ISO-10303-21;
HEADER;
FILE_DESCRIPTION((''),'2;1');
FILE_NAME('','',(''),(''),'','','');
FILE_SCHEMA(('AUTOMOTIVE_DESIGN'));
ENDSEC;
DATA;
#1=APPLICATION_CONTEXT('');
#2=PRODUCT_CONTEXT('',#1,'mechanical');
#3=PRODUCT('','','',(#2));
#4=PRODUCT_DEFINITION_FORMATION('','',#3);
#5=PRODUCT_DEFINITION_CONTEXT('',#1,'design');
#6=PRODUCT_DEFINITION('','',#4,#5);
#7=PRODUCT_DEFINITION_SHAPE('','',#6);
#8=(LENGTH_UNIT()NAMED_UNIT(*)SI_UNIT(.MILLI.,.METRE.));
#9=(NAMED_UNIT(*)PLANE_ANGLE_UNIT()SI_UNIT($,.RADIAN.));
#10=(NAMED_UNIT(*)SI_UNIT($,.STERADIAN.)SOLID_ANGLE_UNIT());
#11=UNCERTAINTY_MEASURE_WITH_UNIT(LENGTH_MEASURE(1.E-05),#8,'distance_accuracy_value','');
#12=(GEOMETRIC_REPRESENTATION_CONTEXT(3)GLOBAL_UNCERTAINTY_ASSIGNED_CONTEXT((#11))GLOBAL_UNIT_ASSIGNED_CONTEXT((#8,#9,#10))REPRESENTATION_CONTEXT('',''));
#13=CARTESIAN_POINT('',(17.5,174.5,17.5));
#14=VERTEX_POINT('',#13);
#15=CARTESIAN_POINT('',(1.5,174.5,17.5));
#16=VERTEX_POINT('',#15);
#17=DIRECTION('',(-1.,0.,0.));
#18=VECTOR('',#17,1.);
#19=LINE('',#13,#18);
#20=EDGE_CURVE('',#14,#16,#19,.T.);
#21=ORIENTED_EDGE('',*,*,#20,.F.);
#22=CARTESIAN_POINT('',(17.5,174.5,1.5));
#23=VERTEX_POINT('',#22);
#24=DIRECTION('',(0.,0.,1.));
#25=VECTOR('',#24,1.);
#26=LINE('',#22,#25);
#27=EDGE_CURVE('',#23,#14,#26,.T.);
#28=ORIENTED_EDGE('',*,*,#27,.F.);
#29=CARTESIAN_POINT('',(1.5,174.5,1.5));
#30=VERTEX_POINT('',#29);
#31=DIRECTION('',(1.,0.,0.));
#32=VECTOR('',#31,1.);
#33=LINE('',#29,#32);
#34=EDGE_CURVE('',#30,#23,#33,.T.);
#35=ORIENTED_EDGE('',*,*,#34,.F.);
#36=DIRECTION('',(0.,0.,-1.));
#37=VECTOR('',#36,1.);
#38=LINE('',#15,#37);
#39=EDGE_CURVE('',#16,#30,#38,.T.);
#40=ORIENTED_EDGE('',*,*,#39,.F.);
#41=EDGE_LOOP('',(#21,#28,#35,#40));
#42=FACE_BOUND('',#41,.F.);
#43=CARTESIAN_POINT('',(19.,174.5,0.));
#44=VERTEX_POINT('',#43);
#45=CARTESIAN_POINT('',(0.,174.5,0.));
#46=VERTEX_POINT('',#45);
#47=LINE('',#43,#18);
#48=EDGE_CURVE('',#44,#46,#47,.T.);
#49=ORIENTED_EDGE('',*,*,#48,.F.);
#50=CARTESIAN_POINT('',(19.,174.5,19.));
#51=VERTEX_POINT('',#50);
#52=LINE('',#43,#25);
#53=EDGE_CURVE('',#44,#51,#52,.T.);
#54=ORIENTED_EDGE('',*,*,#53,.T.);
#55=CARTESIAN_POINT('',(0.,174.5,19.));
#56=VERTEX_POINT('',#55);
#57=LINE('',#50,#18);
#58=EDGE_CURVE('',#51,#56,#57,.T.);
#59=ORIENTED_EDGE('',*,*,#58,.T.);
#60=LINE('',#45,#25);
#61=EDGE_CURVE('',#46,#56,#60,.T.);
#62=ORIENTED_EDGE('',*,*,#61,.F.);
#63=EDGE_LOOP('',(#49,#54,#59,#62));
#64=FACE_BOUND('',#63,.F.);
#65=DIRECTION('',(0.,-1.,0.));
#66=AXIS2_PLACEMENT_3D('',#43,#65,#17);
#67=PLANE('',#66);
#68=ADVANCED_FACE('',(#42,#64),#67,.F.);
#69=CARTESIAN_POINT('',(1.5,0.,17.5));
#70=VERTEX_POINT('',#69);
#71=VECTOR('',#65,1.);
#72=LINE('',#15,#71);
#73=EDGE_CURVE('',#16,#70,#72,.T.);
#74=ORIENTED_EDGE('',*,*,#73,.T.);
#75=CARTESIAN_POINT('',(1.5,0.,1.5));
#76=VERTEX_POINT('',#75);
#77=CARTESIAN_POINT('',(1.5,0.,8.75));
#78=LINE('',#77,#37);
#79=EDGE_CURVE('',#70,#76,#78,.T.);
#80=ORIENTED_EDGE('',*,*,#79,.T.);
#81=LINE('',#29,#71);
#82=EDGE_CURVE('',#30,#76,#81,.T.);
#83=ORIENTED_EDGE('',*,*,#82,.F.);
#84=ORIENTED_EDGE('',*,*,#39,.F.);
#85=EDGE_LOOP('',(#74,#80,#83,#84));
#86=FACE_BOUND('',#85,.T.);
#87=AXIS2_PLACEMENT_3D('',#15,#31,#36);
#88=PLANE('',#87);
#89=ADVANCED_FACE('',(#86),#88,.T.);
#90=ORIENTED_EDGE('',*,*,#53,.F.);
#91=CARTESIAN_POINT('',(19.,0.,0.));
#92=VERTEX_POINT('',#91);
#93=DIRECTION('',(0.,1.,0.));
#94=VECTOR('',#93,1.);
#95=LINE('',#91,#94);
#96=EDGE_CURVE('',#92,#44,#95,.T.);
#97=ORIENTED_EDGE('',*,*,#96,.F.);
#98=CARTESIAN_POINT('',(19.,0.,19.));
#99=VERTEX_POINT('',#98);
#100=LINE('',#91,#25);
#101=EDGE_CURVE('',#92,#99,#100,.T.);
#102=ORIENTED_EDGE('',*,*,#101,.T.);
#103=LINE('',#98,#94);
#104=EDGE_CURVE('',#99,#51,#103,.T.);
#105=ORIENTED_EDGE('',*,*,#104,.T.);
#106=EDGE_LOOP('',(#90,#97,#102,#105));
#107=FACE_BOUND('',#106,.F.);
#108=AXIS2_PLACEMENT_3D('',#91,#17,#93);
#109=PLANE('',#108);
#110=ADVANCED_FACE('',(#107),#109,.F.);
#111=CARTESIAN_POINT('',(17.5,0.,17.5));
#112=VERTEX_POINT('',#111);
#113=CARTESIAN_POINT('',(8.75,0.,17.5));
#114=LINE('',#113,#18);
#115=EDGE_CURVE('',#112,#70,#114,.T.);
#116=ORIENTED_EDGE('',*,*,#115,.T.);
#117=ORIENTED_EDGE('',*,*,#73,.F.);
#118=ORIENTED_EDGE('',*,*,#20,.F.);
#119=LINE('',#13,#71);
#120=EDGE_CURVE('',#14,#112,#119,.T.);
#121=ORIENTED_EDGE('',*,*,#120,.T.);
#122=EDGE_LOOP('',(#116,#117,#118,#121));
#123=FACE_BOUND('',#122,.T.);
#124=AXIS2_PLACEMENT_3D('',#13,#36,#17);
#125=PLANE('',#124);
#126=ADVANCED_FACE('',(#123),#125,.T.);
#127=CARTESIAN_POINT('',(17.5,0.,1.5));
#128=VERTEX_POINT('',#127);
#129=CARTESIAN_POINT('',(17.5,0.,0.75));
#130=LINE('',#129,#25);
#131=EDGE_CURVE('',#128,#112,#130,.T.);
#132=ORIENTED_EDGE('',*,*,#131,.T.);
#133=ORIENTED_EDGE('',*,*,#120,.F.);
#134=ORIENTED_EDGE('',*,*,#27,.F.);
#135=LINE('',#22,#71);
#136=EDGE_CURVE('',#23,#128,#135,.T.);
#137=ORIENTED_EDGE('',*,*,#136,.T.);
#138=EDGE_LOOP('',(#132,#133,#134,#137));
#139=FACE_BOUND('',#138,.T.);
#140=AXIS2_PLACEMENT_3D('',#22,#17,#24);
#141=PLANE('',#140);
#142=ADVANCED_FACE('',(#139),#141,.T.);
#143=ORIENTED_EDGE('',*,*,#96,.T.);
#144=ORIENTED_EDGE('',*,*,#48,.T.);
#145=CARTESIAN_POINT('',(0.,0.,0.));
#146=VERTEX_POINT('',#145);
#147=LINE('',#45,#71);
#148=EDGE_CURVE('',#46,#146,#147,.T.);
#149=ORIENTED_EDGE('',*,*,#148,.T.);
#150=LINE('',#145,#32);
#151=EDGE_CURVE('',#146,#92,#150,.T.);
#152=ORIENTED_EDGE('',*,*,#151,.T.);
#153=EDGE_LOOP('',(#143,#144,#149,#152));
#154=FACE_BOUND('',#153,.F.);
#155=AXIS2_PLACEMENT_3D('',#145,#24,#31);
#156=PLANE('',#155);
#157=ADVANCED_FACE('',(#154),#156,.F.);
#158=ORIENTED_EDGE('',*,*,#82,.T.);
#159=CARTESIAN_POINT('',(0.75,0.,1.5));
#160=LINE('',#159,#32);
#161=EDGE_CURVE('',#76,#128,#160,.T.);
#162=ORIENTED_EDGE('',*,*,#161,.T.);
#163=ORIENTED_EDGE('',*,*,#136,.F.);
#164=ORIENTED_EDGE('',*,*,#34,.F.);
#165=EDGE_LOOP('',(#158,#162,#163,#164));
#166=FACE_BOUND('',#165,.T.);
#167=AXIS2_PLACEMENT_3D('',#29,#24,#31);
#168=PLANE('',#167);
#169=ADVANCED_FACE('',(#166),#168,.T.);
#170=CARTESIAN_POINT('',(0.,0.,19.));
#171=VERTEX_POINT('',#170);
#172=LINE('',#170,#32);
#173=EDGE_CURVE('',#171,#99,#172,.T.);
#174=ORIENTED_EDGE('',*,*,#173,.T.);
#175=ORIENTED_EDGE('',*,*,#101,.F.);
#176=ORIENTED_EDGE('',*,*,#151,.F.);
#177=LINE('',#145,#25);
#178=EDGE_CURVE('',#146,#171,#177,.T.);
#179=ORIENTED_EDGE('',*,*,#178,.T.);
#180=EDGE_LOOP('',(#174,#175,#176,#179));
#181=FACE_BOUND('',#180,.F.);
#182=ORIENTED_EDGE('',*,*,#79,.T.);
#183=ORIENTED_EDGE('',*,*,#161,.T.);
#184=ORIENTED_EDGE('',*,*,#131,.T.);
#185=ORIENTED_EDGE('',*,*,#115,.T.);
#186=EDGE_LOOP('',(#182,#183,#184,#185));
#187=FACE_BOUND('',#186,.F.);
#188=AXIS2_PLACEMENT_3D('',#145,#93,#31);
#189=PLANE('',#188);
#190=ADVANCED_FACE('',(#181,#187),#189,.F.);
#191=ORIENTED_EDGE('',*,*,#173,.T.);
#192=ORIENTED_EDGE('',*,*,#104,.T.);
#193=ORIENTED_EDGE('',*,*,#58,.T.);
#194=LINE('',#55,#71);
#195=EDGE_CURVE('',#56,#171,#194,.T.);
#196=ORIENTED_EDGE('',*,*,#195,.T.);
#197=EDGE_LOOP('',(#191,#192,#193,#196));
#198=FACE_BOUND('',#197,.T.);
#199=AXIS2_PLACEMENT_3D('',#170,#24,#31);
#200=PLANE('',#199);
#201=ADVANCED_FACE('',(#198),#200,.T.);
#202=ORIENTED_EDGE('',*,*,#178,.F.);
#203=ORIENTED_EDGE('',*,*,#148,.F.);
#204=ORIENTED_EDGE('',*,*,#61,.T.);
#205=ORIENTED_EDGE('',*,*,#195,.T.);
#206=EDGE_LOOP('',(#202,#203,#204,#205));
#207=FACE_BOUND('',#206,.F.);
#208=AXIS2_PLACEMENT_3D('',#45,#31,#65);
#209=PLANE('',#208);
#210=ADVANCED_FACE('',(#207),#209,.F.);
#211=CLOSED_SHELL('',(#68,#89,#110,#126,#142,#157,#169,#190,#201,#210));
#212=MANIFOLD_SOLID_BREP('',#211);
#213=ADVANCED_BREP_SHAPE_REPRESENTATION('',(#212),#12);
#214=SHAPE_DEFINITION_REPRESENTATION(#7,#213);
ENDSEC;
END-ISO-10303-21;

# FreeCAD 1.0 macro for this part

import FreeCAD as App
import Part
import Sketcher
from FreeCAD import Vector
Q = App.Units.Quantity


def add_polygon(sketch, points):
    """Adds a closed chain of lines whose ends are joined by coincident constraints."""
    first, n = sketch.GeometryCount, len(points)
    for a, b in zip(points, points[1:] + points[:1]):
        sketch.addGeometry(Part.LineSegment(App.Vector(*a, 0), App.Vector(*b, 0)), False)
    for i in range(n):
        sketch.addConstraint(Sketcher.Constraint("Coincident", first + i, 2, first + (i + 1) % n, 1))

doc = App.newDocument("Part")
body = doc.addObject("PartDesign::Body", "Body")

sketch1 = body.newObject("Sketcher::SketchObject", "Sketch")
sketch1.AttachmentSupport = (doc.getObject("XY_Plane"), [""])
sketch1.MapMode = "FlatFace"
add_polygon(sketch1, [(0, 174.5), (0, 0), (19, 0), (19, 174.5)])
sketch1.addConstraint(Sketcher.Constraint("Vertical", 0))
sketch1.addConstraint(Sketcher.Constraint("Horizontal", 1))
sketch1.addConstraint(Sketcher.Constraint("Vertical", 2))
sketch1.addConstraint(Sketcher.Constraint("Horizontal", 3))
sketch1.addConstraint(Sketcher.Constraint("Coincident", 0, 2, -1, 1))
sketch1.addConstraint(Sketcher.Constraint("DistanceX", 1, 1, 1, 2, Q("19 mm")))
sketch1.addConstraint(Sketcher.Constraint("DistanceY", 0, 2, 0, 1, Q("174.5 mm")))
pad1 = body.newObject("PartDesign::Pad", "Pad")
pad1.Profile = sketch1
pad1.Length = 19

sketch2 = body.newObject("Sketcher::SketchObject", "Sketch001")
sketch2.AttachmentSupport = (doc.getObject("XZ_Plane"), [""])
sketch2.MapMode = "FlatFace"
sketch2.AttachmentOffset = App.Placement(Vector(0, 0, -174.5), App.Rotation())
add_polygon(sketch2, [(1.5, 1.5), (1.5, 17.5), (17.5, 17.5), (17.5, 1.5)])
sketch2.addConstraint(Sketcher.Constraint("Vertical", 0))
sketch2.addConstraint(Sketcher.Constraint("Horizontal", 1))
sketch2.addConstraint(Sketcher.Constraint("Vertical", 2))
sketch2.addConstraint(Sketcher.Constraint("Horizontal", 3))
sketch2.addConstraint(Sketcher.Constraint("Equal", 3, 0))
sketch2.addConstraint(Sketcher.Constraint("DistanceX", -1, 1, 0, 2, Q("1.5 mm")))
sketch2.addConstraint(Sketcher.Constraint("DistanceY", -1, 1, 2, 2, Q("1.5 mm")))
sketch2.addConstraint(Sketcher.Constraint("DistanceX", 1, 1, 1, 2, Q("16 mm")))
pocket1 = body.newObject("PartDesign::Pocket", "Pocket")
pocket1.Profile = sketch2
pocket1.Type = "ThroughAll"
pocket1.Reversed = True

doc.recompute()
